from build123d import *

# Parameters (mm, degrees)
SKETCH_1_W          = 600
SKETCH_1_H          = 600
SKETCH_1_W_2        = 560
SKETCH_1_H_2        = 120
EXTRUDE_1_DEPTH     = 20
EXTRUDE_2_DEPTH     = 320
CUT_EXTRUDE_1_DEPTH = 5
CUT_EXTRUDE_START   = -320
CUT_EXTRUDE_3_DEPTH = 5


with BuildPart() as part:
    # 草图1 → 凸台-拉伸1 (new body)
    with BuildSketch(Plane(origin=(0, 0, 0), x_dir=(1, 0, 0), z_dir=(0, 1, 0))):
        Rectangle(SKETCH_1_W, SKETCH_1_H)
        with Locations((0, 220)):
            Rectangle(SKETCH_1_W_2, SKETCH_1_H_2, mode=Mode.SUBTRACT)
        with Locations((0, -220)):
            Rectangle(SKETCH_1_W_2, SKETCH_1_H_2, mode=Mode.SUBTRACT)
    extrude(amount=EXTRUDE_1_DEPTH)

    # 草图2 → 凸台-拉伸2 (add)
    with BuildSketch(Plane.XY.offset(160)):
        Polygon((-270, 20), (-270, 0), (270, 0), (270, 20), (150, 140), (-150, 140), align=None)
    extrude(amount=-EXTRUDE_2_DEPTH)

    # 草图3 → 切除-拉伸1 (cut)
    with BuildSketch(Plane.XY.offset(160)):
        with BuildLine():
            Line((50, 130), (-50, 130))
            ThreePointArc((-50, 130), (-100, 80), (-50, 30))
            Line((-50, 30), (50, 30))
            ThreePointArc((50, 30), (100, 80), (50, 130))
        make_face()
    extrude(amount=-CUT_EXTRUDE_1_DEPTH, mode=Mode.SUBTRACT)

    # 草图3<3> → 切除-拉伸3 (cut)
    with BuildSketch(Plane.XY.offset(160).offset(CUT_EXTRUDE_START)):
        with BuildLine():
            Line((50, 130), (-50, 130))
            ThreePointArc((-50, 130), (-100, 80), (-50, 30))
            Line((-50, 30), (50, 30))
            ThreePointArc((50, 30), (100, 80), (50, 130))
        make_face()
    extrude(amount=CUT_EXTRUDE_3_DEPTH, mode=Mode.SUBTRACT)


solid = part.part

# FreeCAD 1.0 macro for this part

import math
import FreeCAD as App
import Part
import Sketcher

V = App.Vector
Q = App.Units.Quantity


def add_polygon(sketch, points):
    """Adds a closed chain of lines whose ends are joined by coincident constraints."""
    first, n = sketch.GeometryCount, len(points)
    for a, b in zip(points, points[1:] + points[:1]):
        sketch.addGeometry(Part.LineSegment(App.Vector(*a, 0), App.Vector(*b, 0)), False)
    for i in range(n):
        sketch.addConstraint(Sketcher.Constraint("Coincident", first + i, 2, first + (i + 1) % n, 1))

doc = App.newDocument("Part")
body = doc.addObject("PartDesign::Body", "Body")

# Sketch on XZ plane
sketch1 = doc.addObject("Sketcher::SketchObject", "Sketch")
body.addObject(sketch1)
sketch1.AttachmentSupport = (doc.XZ_Plane, [""])
sketch1.MapMode = "FlatFace"
add_polygon(sketch1, [(-300, -300), (-300, 300), (300, 300), (300, -300)])  # lines 0-3
add_polygon(sketch1, [(280, 280), (-280, 280), (-280, 160), (280, 160)])  # lines 4-7
add_polygon(sketch1, [(280, -160), (-280, -160), (-280, -280), (280, -280)])  # lines 8-11
sketch1.addConstraint(Sketcher.Constraint("Vertical", 0))
sketch1.addConstraint(Sketcher.Constraint("Horizontal", 1))
sketch1.addConstraint(Sketcher.Constraint("Vertical", 2))
sketch1.addConstraint(Sketcher.Constraint("Horizontal", 3))
sketch1.addConstraint(Sketcher.Constraint("Horizontal", 4))
sketch1.addConstraint(Sketcher.Constraint("Vertical", 5))
sketch1.addConstraint(Sketcher.Constraint("Horizontal", 6))
sketch1.addConstraint(Sketcher.Constraint("Vertical", 7))
sketch1.addConstraint(Sketcher.Constraint("Horizontal", 8))
sketch1.addConstraint(Sketcher.Constraint("Vertical", 9))
sketch1.addConstraint(Sketcher.Constraint("Horizontal", 10))
sketch1.addConstraint(Sketcher.Constraint("Vertical", 11))
sketch1.addConstraint(Sketcher.Constraint("Symmetric", 0, 2, 2, 2, -1, 1))
sketch1.addConstraint(Sketcher.Constraint("Symmetric", 6, 2, 8, 2, -1, 1))
sketch1.addConstraint(Sketcher.Constraint("Symmetric", 4, 2, 10, 2, -1, 1))
sketch1.addConstraint(Sketcher.Constraint("Vertical", 5, 2, 8, 2))
sketch1.addConstraint(Sketcher.Constraint("Equal", 3, 0))
sketch1.addConstraint(Sketcher.Constraint("DistanceX", 1, 1, 1, 2, Q("600 mm")))
sketch1.addConstraint(Sketcher.Constraint("DistanceX", 4, 2, 4, 1, Q("560 mm")))
sketch1.addConstraint(Sketcher.Constraint("DistanceY", 5, 2, 5, 1, Q("120 mm")))
sketch1.addConstraint(Sketcher.Constraint("DistanceY", -1, 1, 4, 2, Q("280 mm")))
pad1 = doc.addObject("PartDesign::Pad", "Pad")
body.addObject(pad1)
pad1.Profile = sketch1
pad1.Length = 20
pad1.Reversed = True

# Sketch on XY plane
sketch2 = doc.addObject("Sketcher::SketchObject", "Sketch001")
body.addObject(sketch2)
sketch2.AttachmentSupport = (doc.XY_Plane, [""])
sketch2.MapMode = "FlatFace"
sketch2.AttachmentOffset = App.Placement(V(0, 0, 160), App.Rotation())
add_polygon(sketch2, [(-270, 20), (-270, 0), (270, 0), (270, 20), (150, 140), (-150, 140)])  # lines 0-5
sketch2.addConstraint(Sketcher.Constraint("Vertical", 0))
sketch2.addConstraint(Sketcher.Constraint("Horizontal", 1))
sketch2.addConstraint(Sketcher.Constraint("Vertical", 2))
sketch2.addConstraint(Sketcher.Constraint("Horizontal", 4))
sketch2.addConstraint(Sketcher.Constraint("Symmetric", 0, 2, 1, 2, -1, 1))
sketch2.addConstraint(Sketcher.Constraint("Perpendicular", 3, 5))
sketch2.addConstraint(Sketcher.Constraint("Horizontal", 2, 2, 5, 2))
sketch2.addConstraint(Sketcher.Constraint("Equal", 3, 5))
sketch2.addConstraint(Sketcher.Constraint("DistanceX", 1, 1, 1, 2, Q("540 mm")))
sketch2.addConstraint(Sketcher.Constraint("DistanceX", 4, 2, 4, 1, Q("300 mm")))
sketch2.addConstraint(Sketcher.Constraint("DistanceY", 0, 2, 0, 1, Q("20 mm")))
pad2 = doc.addObject("PartDesign::Pad", "Pad001")
body.addObject(pad2)
pad2.Profile = sketch2
pad2.Length = 320
pad2.Reversed = True

# Sketch on XY plane
sketch3 = doc.addObject("Sketcher::SketchObject", "Sketch002")
body.addObject(sketch3)
sketch3.AttachmentSupport = (doc.XY_Plane, [""])
sketch3.MapMode = "FlatFace"
sketch3.AttachmentOffset = App.Placement(V(0, 0, 160), App.Rotation())
sketch3.addGeometry(Part.LineSegment(V(50, 130, 0), V(-50, 130, 0)), False)
sketch3.addGeometry(Part.ArcOfCircle(Part.Circle(V(-50, 80, 0), V(0, 0, 1), 50), math.radians(90), math.radians(270)), False)
sketch3.addGeometry(Part.LineSegment(V(-50, 30, 0), V(50, 30, 0)), False)
sketch3.addGeometry(Part.ArcOfCircle(Part.Circle(V(50, 80, 0), V(0, 0, 1), 50), math.radians(-90), math.radians(90)), False)
sketch3.addConstraint(Sketcher.Constraint("Tangent", 0, 2, 1, 1))
sketch3.addConstraint(Sketcher.Constraint("Tangent", 1, 2, 2, 1))
sketch3.addConstraint(Sketcher.Constraint("Tangent", 2, 2, 3, 1))
sketch3.addConstraint(Sketcher.Constraint("Tangent", 3, 2, 0, 1))
sketch3.addConstraint(Sketcher.Constraint("Horizontal", 0))
sketch3.addConstraint(Sketcher.Constraint("Horizontal", 2))
sketch3.addConstraint(Sketcher.Constraint("Radius", 1, Q("50 mm")))
sketch3.addConstraint(Sketcher.Constraint("DistanceX", 0, 2, 0, 1, Q("100 mm")))
sketch3.addConstraint(Sketcher.Constraint("DistanceX", 1, 3, -1, 1, Q("50 mm")))
sketch3.addConstraint(Sketcher.Constraint("DistanceY", -1, 1, 1, 3, Q("80 mm")))
pocket1 = doc.addObject("PartDesign::Pocket", "Pocket")
body.addObject(pocket1)
pocket1.Profile = sketch3
pocket1.Length = 5

# Sketch on XY plane
sketch4 = doc.addObject("Sketcher::SketchObject", "Sketch003")
body.addObject(sketch4)
sketch4.AttachmentSupport = (doc.XY_Plane, [""])
sketch4.MapMode = "FlatFace"
sketch4.AttachmentOffset = App.Placement(V(0, 0, -160), App.Rotation())
sketch4.addGeometry(Part.LineSegment(V(50, 130, 0), V(-50, 130, 0)), False)
sketch4.addGeometry(Part.ArcOfCircle(Part.Circle(V(-50, 80, 0), V(0, 0, 1), 50), math.radians(90), math.radians(270)), False)
sketch4.addGeometry(Part.LineSegment(V(-50, 30, 0), V(50, 30, 0)), False)
sketch4.addGeometry(Part.ArcOfCircle(Part.Circle(V(50, 80, 0), V(0, 0, 1), 50), math.radians(-90), math.radians(90)), False)
sketch4.addConstraint(Sketcher.Constraint("Tangent", 0, 2, 1, 1))
sketch4.addConstraint(Sketcher.Constraint("Tangent", 1, 2, 2, 1))
sketch4.addConstraint(Sketcher.Constraint("Tangent", 2, 2, 3, 1))
sketch4.addConstraint(Sketcher.Constraint("Tangent", 3, 2, 0, 1))
sketch4.addConstraint(Sketcher.Constraint("Horizontal", 0))
sketch4.addConstraint(Sketcher.Constraint("Horizontal", 2))
sketch4.addConstraint(Sketcher.Constraint("Radius", 1, Q("50 mm")))
sketch4.addConstraint(Sketcher.Constraint("DistanceX", 0, 2, 0, 1, Q("100 mm")))
sketch4.addConstraint(Sketcher.Constraint("DistanceX", 1, 3, -1, 1, Q("50 mm")))
sketch4.addConstraint(Sketcher.Constraint("DistanceY", -1, 1, 1, 3, Q("80 mm")))
pocket2 = doc.addObject("PartDesign::Pocket", "Pocket001")
body.addObject(pocket2)
pocket2.Profile = sketch4
pocket2.Length = 5
pocket2.Reversed = True

doc.recompute()
